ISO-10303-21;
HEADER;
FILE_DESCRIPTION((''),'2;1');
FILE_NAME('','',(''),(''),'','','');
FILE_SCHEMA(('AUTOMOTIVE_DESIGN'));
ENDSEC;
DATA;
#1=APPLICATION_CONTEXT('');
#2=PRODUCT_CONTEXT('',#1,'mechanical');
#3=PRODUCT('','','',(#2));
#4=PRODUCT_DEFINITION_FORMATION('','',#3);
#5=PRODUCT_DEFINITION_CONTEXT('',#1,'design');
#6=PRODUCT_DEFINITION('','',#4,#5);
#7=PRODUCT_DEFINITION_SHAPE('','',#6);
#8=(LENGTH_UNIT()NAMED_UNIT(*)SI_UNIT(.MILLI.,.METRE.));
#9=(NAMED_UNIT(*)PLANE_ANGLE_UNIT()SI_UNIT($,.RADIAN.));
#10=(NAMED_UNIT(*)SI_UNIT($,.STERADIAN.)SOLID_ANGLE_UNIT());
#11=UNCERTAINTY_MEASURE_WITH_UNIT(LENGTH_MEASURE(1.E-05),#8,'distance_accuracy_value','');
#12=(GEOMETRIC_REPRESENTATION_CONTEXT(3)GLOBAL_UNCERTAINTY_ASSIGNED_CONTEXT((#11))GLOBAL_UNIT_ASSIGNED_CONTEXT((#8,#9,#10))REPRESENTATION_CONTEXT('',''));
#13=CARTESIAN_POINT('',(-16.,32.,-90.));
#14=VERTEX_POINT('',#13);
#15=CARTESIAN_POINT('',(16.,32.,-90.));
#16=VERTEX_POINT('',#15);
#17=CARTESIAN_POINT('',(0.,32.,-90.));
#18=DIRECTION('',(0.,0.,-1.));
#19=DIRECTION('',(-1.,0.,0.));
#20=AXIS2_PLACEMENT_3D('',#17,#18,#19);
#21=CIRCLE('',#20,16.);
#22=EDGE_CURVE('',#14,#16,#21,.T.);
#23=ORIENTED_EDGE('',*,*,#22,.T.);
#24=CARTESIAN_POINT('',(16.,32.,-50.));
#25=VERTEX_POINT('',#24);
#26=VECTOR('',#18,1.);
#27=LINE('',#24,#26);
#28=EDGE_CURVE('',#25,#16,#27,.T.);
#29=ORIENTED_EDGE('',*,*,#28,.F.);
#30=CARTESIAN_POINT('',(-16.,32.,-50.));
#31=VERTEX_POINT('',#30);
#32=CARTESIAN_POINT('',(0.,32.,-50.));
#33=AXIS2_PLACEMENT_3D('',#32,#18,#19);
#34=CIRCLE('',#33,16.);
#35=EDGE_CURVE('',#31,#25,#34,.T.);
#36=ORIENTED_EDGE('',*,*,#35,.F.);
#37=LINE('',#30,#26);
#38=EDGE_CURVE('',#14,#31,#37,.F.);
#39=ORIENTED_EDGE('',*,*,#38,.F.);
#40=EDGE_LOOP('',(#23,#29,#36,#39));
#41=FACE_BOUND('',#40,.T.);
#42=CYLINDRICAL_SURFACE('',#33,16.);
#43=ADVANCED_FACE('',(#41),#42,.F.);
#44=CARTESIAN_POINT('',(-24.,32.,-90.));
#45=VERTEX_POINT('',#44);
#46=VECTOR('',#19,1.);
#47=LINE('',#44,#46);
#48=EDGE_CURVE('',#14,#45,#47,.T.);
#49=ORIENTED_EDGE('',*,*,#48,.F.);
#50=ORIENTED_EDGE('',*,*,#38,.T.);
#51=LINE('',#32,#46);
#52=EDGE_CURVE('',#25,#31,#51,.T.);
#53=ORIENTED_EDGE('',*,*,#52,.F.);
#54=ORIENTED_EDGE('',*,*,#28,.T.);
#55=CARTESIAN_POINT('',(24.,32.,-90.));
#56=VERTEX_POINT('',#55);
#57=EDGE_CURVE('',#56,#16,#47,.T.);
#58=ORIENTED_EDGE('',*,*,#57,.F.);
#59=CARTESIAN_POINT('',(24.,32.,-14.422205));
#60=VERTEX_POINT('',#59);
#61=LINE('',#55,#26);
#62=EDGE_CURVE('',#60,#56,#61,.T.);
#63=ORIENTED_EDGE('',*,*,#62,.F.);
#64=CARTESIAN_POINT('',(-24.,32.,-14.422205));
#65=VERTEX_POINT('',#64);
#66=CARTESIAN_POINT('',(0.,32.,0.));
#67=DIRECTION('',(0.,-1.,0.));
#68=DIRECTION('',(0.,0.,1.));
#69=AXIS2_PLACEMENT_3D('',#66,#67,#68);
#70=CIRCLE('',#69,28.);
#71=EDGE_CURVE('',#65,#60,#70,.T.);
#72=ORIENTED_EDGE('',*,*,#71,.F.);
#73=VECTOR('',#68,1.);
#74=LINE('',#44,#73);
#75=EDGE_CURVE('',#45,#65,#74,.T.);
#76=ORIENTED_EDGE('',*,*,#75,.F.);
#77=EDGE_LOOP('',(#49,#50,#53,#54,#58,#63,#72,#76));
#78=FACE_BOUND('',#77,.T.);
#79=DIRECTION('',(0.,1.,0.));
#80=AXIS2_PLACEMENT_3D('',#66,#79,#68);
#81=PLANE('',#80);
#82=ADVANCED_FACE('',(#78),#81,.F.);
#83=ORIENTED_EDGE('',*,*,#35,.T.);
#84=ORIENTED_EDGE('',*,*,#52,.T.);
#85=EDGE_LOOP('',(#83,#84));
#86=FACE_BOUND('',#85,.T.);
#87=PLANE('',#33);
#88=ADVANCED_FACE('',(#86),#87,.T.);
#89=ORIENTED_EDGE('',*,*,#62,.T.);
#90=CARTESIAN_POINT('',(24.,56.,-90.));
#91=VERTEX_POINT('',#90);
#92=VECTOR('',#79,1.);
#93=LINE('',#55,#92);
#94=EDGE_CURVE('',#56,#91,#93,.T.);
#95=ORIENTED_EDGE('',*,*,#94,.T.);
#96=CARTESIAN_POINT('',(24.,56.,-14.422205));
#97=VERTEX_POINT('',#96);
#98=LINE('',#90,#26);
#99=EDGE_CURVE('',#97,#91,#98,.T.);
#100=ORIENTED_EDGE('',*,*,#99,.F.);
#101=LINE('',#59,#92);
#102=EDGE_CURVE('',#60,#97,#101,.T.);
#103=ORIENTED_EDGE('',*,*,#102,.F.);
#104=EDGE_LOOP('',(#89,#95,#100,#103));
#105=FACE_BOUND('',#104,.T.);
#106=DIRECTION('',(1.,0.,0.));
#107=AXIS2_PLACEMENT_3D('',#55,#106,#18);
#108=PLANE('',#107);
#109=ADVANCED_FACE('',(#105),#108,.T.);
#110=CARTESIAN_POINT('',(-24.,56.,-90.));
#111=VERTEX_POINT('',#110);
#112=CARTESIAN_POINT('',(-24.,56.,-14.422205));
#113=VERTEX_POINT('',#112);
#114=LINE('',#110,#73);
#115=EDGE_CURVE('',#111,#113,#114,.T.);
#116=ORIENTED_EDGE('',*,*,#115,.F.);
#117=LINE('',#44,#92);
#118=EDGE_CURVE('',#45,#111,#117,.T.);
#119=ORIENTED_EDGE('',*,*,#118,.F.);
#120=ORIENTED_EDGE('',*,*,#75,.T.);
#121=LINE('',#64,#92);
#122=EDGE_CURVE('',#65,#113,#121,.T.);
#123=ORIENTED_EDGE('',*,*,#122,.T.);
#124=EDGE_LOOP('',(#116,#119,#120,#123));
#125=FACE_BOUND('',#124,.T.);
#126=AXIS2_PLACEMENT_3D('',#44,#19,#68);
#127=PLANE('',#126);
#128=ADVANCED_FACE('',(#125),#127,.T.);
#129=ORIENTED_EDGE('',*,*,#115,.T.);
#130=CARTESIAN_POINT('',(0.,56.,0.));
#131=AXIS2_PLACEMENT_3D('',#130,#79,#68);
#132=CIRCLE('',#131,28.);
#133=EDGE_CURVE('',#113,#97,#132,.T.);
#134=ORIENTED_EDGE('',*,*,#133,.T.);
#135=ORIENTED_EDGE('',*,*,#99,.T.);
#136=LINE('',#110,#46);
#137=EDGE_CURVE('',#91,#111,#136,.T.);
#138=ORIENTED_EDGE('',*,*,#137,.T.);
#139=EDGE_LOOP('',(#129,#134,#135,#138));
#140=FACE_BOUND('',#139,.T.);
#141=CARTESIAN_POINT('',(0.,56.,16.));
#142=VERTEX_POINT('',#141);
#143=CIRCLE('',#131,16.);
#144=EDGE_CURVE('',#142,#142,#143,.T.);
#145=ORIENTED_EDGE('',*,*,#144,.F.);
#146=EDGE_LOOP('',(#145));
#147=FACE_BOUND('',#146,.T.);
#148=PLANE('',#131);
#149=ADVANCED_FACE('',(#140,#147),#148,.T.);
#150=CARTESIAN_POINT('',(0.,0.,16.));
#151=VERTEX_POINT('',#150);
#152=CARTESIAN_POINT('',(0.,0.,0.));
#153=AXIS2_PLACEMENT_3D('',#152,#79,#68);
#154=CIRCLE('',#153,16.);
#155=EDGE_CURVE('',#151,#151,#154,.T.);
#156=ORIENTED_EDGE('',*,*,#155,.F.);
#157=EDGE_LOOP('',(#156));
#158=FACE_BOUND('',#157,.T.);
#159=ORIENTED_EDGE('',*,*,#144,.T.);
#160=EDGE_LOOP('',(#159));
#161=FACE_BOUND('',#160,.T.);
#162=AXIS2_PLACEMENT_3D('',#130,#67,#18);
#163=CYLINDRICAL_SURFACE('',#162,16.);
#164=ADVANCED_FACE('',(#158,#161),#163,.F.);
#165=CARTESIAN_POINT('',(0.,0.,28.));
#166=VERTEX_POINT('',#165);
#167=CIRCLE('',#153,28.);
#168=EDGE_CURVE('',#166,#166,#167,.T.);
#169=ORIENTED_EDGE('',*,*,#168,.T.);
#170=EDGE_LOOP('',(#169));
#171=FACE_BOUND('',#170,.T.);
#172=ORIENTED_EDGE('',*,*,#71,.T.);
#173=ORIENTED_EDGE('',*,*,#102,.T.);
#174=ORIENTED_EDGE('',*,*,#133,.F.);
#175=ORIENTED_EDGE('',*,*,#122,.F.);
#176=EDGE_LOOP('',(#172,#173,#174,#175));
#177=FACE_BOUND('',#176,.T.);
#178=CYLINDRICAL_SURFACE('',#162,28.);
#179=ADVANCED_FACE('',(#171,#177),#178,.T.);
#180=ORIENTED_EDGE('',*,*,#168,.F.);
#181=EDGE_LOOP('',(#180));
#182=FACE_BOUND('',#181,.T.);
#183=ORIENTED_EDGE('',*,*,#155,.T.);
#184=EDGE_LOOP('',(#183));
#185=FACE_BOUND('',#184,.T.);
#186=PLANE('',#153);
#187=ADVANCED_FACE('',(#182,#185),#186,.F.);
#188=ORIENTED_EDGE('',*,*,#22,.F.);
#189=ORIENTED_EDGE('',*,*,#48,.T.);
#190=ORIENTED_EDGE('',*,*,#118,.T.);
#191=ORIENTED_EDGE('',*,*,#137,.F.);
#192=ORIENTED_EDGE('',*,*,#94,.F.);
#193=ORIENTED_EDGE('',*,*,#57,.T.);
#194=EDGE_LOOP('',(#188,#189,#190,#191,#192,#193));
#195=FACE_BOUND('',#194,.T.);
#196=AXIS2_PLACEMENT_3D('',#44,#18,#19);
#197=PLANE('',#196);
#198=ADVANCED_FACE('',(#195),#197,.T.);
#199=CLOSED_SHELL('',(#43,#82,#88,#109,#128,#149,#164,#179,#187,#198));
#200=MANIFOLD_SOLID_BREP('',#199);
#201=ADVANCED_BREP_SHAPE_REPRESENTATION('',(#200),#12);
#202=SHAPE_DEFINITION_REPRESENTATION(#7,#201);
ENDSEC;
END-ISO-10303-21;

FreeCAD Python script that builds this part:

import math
import FreeCAD as App
import Part
import Sketcher

doc = App.newDocument("Part")
body = doc.addObject("PartDesign::Body", "Body")

# Sketch on XZ plane
sketch1 = body.newObject("Sketcher::SketchObject", "Sketch")
sketch1.AttachmentSupport = (doc.getObject("XZ_Plane"), [""])
sketch1.MapMode = "FlatFace"
sketch1.addGeometry(Part.Circle(App.Vector(0, 0, 0), App.Vector(0, 0, 1), 28), False)
sketch1.addGeometry(Part.Circle(App.Vector(0, 0, 0), App.Vector(0, 0, 1), 16), False)
sketch1.addConstraint(Sketcher.Constraint("Coincident", 0, 3, -1, 1))
sketch1.addConstraint(Sketcher.Constraint("Coincident", 1, 3, -1, 1))
sketch1.addConstraint(Sketcher.Constraint("Diameter", 0, 56.0))
sketch1.addConstraint(Sketcher.Constraint("Diameter", 1, 32.0))
pad1 = body.newObject("PartDesign::Pad", "Pad")
pad1.Profile = sketch1
pad1.Length = 56
pad1.Reversed = True

# Sketch on XZ plane
sketch2 = body.newObject("Sketcher::SketchObject", "Sketch001")
sketch2.AttachmentSupport = (doc.getObject("XZ_Plane"), [""])
sketch2.MapMode = "FlatFace"
sketch2.AttachmentOffset = App.Placement(App.Vector(0, 0, -32), App.Rotation())
sketch2.addGeometry(Part.LineSegment(App.Vector(24, -90, 0), App.Vector(-24, -90, 0)), False)
sketch2.addGeometry(Part.LineSegment(App.Vector(-24, -90, 0), App.Vector(-24, -14, 0)), False)
sketch2.addGeometry(Part.ArcOfCircle(Part.Circle(App.Vector(0, 0, 0), App.Vector(0, 0, 1), 28), math.radians(-149), math.radians(-31)), False)
sketch2.addGeometry(Part.LineSegment(App.Vector(24, -14, 0), App.Vector(24, -90, 0)), False)
sketch2.addConstraint(Sketcher.Constraint("Coincident", 0, 2, 1, 1))
sketch2.addConstraint(Sketcher.Constraint("Coincident", 1, 2, 2, 1))
sketch2.addConstraint(Sketcher.Constraint("Coincident", 2, 2, 3, 1))
sketch2.addConstraint(Sketcher.Constraint("Coincident", 3, 2, 0, 1))
sketch2.addConstraint(Sketcher.Constraint("Horizontal", 0))
sketch2.addConstraint(Sketcher.Constraint("Vertical", 1))
sketch2.addConstraint(Sketcher.Constraint("Vertical", 3))
sketch2.addConstraint(Sketcher.Constraint("Coincident", 2, 3, -1, 1))
sketch2.addConstraint(Sketcher.Constraint("Horizontal", 1, 2, 2, 2))
sketch2.addConstraint(Sketcher.Constraint("Radius", 2, 28.0))
sketch2.addConstraint(Sketcher.Constraint("DistanceX", 0, 2, 0, 1, 48.0))
sketch2.addConstraint(Sketcher.Constraint("DistanceY", 0, 2, -1, 1, 90.0))
pad2 = body.newObject("PartDesign::Pad", "Pad001")
pad2.Profile = sketch2
pad2.Length = 24
pad2.Reversed = True

# Sketch on XY plane
sketch3 = body.newObject("Sketcher::SketchObject", "Sketch002")
sketch3.AttachmentSupport = (doc.getObject("XY_Plane"), [""])
sketch3.MapMode = "FlatFace"
sketch3.AttachmentOffset = App.Placement(App.Vector(0, 0, -90), App.Rotation())
sketch3.addGeometry(Part.Circle(App.Vector(0, 32, 0), App.Vector(0, 0, 1), 16), False)
sketch3.addConstraint(Sketcher.Constraint("PointOnObject", 0, 3, -2))
sketch3.addConstraint(Sketcher.Constraint("Diameter", 0, 32.0))
sketch3.addConstraint(Sketcher.Constraint("DistanceY", -1, 1, 0, 3, 32.0))
pocket1 = body.newObject("PartDesign::Pocket", "Pocket")
pocket1.Profile = sketch3
pocket1.Length = 40
pocket1.Reversed = True

doc.recompute()
